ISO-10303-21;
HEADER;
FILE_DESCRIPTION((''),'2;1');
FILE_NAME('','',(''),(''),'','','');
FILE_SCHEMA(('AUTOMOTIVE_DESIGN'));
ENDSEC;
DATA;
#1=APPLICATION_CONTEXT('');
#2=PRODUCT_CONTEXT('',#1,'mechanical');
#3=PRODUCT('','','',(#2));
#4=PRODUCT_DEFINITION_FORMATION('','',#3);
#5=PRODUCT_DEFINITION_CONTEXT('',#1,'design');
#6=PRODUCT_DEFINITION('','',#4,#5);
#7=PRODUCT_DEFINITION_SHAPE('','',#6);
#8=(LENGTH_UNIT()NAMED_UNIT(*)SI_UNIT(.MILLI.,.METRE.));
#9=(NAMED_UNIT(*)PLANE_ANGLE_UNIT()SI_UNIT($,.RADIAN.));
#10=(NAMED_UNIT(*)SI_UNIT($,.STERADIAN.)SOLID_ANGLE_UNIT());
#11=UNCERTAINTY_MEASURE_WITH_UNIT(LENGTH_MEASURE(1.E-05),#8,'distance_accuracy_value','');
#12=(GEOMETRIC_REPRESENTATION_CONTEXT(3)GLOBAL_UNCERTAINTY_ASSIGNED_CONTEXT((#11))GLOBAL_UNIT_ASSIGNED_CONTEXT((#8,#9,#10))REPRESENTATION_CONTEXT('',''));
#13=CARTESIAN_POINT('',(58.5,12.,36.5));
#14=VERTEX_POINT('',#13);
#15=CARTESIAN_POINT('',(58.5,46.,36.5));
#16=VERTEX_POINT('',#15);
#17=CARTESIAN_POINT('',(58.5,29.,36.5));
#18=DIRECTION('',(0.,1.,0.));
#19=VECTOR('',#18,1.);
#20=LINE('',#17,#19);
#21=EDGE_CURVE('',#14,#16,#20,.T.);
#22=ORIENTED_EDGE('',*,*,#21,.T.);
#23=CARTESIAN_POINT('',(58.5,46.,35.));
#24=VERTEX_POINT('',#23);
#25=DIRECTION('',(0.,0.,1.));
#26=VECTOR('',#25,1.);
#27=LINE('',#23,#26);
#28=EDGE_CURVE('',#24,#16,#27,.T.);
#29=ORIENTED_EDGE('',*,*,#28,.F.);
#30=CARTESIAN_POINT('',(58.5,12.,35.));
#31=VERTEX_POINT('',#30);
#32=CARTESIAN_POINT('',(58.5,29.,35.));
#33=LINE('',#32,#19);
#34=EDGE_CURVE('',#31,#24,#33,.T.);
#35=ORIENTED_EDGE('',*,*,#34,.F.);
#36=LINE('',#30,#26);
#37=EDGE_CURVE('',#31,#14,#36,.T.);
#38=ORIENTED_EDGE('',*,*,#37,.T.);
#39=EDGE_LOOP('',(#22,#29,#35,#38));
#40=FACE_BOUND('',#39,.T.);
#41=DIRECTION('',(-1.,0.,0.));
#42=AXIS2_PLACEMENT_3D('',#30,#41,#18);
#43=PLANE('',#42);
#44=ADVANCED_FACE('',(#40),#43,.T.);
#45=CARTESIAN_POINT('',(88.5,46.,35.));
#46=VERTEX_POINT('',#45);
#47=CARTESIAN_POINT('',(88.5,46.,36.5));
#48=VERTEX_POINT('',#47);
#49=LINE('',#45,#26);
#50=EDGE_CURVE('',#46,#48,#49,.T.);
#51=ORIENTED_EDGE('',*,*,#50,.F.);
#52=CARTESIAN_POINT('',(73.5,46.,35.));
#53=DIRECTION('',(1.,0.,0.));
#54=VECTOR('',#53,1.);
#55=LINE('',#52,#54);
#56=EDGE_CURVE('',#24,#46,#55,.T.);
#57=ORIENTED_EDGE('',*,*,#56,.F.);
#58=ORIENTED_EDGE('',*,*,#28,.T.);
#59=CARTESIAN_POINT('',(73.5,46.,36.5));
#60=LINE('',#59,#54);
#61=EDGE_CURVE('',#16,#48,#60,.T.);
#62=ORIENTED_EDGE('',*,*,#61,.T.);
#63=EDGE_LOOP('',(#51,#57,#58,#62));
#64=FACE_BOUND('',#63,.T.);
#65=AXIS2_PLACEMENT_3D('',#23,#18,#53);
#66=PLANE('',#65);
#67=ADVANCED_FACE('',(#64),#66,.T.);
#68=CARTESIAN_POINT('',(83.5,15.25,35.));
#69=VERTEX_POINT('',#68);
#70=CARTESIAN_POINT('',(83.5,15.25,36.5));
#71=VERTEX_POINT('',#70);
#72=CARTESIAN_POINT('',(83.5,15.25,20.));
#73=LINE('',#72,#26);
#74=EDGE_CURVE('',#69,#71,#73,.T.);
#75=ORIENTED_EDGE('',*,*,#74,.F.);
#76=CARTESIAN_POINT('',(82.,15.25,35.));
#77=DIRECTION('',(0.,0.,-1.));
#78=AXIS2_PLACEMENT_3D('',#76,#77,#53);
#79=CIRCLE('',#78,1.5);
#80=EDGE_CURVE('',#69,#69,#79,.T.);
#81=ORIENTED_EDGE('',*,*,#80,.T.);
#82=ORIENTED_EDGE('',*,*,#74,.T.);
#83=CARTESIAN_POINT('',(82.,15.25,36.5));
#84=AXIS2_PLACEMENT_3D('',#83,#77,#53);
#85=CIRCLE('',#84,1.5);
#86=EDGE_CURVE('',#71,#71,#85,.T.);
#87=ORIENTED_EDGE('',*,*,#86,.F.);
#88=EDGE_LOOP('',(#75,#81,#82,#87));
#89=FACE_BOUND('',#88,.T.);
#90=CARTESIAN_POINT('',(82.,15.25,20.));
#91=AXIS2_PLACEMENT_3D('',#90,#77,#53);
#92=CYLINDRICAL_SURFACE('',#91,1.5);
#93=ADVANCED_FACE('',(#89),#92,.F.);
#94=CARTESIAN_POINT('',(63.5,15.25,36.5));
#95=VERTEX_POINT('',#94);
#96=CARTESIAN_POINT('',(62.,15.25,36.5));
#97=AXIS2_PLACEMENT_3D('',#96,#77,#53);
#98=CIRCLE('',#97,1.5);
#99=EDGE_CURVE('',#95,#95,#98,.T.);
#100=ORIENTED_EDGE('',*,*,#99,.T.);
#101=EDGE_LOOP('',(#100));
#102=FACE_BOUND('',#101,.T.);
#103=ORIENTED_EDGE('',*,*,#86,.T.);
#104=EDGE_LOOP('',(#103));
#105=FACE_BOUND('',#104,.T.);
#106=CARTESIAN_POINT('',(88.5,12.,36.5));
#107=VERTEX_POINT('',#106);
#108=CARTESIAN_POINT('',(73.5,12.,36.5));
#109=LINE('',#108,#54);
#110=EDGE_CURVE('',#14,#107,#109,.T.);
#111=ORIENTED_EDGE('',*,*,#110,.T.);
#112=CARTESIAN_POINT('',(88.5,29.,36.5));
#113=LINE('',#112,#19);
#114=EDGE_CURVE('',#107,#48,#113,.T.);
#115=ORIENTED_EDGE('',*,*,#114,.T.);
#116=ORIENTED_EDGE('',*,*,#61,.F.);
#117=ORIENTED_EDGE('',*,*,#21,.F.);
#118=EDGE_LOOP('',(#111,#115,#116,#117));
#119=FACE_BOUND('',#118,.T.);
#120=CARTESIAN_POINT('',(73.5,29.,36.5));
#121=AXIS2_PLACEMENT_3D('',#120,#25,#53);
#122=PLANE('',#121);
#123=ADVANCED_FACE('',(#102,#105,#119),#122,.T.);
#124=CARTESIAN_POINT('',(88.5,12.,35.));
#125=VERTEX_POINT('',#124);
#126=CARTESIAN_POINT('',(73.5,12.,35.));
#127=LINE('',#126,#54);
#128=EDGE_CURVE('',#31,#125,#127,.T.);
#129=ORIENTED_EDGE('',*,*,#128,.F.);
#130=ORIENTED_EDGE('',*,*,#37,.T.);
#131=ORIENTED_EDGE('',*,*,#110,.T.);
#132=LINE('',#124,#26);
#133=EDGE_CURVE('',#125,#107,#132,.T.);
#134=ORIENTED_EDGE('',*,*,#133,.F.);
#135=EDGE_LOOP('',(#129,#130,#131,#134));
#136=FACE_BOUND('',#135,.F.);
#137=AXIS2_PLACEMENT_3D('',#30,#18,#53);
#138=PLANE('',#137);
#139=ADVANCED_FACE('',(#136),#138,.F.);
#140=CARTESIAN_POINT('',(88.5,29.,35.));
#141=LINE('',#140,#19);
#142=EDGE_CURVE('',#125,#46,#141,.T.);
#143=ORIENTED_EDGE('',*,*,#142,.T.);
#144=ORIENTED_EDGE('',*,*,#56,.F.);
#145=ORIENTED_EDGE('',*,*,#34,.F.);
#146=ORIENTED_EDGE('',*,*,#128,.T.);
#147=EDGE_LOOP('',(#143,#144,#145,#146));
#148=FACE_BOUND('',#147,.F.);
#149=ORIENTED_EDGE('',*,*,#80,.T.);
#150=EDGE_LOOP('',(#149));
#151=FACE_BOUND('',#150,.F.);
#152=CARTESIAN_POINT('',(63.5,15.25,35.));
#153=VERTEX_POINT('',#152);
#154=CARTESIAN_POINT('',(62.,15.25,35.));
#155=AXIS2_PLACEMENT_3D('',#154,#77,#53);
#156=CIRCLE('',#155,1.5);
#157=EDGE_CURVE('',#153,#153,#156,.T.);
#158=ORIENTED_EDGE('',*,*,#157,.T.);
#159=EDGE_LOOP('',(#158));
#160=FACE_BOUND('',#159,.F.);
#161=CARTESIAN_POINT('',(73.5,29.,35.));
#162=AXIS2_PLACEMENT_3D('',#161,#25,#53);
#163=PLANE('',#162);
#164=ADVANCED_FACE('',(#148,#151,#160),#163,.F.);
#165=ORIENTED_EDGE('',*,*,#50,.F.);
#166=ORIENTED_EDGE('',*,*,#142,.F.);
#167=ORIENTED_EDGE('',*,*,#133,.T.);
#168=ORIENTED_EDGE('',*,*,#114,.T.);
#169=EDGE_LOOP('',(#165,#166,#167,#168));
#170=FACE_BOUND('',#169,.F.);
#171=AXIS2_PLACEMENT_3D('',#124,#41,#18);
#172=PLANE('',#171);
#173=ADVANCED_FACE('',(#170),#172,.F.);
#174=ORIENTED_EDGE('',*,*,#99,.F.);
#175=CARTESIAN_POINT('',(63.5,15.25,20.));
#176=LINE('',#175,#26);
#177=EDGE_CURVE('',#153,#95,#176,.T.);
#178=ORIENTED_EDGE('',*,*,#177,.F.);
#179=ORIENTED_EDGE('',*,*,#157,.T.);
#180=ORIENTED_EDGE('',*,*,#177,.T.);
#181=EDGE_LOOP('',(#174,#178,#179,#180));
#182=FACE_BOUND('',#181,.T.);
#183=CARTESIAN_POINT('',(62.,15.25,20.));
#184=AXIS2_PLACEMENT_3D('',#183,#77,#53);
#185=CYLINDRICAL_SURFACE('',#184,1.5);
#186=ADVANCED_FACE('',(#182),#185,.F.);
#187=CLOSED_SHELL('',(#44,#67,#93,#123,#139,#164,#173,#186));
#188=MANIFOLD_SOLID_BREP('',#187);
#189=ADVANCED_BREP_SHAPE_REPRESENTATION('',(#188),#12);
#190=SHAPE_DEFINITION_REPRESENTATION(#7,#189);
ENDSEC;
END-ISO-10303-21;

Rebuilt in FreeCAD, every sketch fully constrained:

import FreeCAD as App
import Part
import Sketcher
Q = App.Units.Quantity

doc = App.newDocument("Part")
body = doc.addObject("PartDesign::Body", "Body")

# Sketch on XY plane
sketch1 = doc.addObject("Sketcher::SketchObject", "Sketch")
body.addObject(sketch1)
sketch1.AttachmentSupport = (doc.XY_Plane, [""])
sketch1.MapMode = "FlatFace"
sketch1.AttachmentOffset = App.Placement(App.Vector(0, 0, 20), App.Rotation())
sketch1.addGeometry(Part.Circle(App.Vector(82, 15.2, 0), App.Vector(0, 0, 1), 1.5), False)
sketch1.addConstraint([
    Sketcher.Constraint("Diameter", 0, Q("3 mm")),
    Sketcher.Constraint("DistanceX", -1, 1, 0, 3, Q("82 mm")),
    Sketcher.Constraint("DistanceY", -1, 1, 0, 3, Q("15.25 mm")),
])
pad1 = doc.addObject("PartDesign::Pad", "Pad")
body.addObject(pad1)
pad1.Profile = sketch1
pad1.Length = 20
body2 = doc.addObject("PartDesign::Body", "Body001")
body2.AllowCompound = True

# Sketch on XY plane
sketch2 = doc.addObject("Sketcher::SketchObject", "Sketch001")
body2.addObject(sketch2)
sketch2.AttachmentSupport = (doc.getObject("XY_Plane001"), [""])
sketch2.MapMode = "FlatFace"
sketch2.AttachmentOffset = App.Placement(App.Vector(0, 0, 20), App.Rotation())
sketch2.addGeometry(Part.Circle(App.Vector(62, 15.2, 0), App.Vector(0, 0, 1), 1.5), False)
sketch2.addConstraint([
    Sketcher.Constraint("Diameter", 0, Q("3 mm")),
    Sketcher.Constraint("DistanceX", -1, 1, 0, 3, Q("62 mm")),
    Sketcher.Constraint("DistanceY", -1, 1, 0, 3, Q("15.25 mm")),
])
pad2 = doc.addObject("PartDesign::Pad", "Pad001")
body2.addObject(pad2)
pad2.Profile = sketch2
pad2.Length = 20
doc.recompute()

boolean = doc.addObject("PartDesign::Boolean", "Boolean")
body2.addObject(boolean)
boolean.Type = "Fuse"
boolean.addObjects([body])
body3 = doc.addObject("PartDesign::Body", "Body002")

# Sketch on XY plane
sketch3 = doc.addObject("Sketcher::SketchObject", "Sketch002")
body3.addObject(sketch3)
sketch3.AttachmentSupport = (doc.getObject("XY_Plane002"), [""])
sketch3.MapMode = "FlatFace"
sketch3.AttachmentOffset = App.Placement(App.Vector(0, 0, 35), App.Rotation())
sketch3.addGeometry([
    Part.LineSegment(App.Vector(58, 46, 0), App.Vector(58, 12, 0)),
    Part.LineSegment(App.Vector(58, 12, 0), App.Vector(88, 12, 0)),
    Part.LineSegment(App.Vector(88, 12, 0), App.Vector(88, 46, 0)),
    Part.LineSegment(App.Vector(88, 46, 0), App.Vector(58, 46, 0)),
], False)
sketch3.addConstraint([
    Sketcher.Constraint("Coincident", 0, 2, 1, 1),
    Sketcher.Constraint("Coincident", 1, 2, 2, 1),
    Sketcher.Constraint("Coincident", 2, 2, 3, 1),
    Sketcher.Constraint("Coincident", 3, 2, 0, 1),
    Sketcher.Constraint("Vertical", 0),
    Sketcher.Constraint("Horizontal", 1),
    Sketcher.Constraint("Vertical", 2),
    Sketcher.Constraint("Horizontal", 3),
    Sketcher.Constraint("DistanceX", 1, 1, 1, 2, Q("30 mm")),
    Sketcher.Constraint("DistanceY", 0, 2, 0, 1, Q("34 mm")),
    Sketcher.Constraint("DistanceY", -1, 1, 0, 2, Q("12 mm")),
    Sketcher.Constraint("DistanceX", -1, 1, 0, 2, Q("58.5 mm")),
])
pad3 = doc.addObject("PartDesign::Pad", "Pad002")
body3.addObject(pad3)
pad3.Profile = sketch3
pad3.Length = 1.5
doc.recompute()

boolean2 = doc.addObject("PartDesign::Boolean", "Boolean001")
body3.addObject(boolean2)
boolean2.Type = "Cut"
boolean2.addObjects([body2])

doc.recompute()
